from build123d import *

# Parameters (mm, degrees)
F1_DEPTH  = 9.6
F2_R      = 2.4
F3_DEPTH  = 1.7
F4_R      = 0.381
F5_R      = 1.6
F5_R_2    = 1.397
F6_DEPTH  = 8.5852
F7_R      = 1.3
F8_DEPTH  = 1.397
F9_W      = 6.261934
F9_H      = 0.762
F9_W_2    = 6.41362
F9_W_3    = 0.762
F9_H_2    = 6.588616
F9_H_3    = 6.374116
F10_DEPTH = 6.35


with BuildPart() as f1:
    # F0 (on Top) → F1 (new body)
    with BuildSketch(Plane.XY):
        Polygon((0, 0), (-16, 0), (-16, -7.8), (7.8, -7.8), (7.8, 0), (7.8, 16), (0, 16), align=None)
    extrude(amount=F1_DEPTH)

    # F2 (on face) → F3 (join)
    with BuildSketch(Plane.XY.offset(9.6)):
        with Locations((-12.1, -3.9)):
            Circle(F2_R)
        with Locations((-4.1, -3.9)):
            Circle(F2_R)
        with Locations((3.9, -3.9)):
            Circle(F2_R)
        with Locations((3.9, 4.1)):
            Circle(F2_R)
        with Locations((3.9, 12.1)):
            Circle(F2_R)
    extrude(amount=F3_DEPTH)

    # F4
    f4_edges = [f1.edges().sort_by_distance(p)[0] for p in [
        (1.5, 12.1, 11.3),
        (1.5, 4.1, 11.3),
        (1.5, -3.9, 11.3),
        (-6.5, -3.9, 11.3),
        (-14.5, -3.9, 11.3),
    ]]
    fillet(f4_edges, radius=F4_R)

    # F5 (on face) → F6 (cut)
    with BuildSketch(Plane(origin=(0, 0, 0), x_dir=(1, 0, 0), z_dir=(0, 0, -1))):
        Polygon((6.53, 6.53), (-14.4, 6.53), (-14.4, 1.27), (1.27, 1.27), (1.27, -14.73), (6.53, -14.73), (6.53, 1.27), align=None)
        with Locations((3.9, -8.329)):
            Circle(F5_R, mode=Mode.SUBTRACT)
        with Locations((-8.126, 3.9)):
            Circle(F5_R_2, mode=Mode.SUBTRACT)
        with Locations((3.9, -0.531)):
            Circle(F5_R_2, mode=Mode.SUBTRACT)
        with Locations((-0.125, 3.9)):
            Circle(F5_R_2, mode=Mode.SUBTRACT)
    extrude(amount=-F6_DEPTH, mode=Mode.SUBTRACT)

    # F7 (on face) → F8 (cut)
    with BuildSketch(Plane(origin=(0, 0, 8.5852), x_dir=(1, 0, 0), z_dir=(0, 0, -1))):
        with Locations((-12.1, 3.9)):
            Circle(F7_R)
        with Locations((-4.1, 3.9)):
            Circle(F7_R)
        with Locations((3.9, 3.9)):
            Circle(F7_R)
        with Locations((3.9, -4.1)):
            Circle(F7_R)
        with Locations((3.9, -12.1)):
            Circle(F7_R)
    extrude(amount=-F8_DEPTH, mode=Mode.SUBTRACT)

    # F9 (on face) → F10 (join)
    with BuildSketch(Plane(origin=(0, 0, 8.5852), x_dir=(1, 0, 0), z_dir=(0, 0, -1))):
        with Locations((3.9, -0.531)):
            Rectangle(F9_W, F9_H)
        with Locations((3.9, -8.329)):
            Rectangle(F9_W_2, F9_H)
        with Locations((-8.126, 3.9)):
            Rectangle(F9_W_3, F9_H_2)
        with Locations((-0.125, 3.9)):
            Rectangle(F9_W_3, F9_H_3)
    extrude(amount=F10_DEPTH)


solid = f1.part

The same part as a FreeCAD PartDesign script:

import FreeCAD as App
import Part
import Sketcher
Q = App.Units.Quantity


def edges_at(feature, points):
    """Names of the edges that pass closest to the given points."""
    edges = feature.Shape.Edges
    near = lambda p: min(range(len(edges)), key=lambda i: edges[i].distToShape(Part.Vertex(*p))[0])
    return sorted({f"Edge{near(p) + 1}" for p in points})

doc = App.newDocument("Part")
body = doc.addObject("PartDesign::Body", "Body")

sketch1 = body.newObject("Sketcher::SketchObject", "Sketch")
sketch1.AttachmentSupport = (doc.getObject("XY_Plane"), [""])
sketch1.MapMode = "FlatFace"
sketch1.addGeometry([
    Part.LineSegment(App.Vector(0, 0, 0), App.Vector(-16, 0, 0)),
    Part.LineSegment(App.Vector(-16, 0, 0), App.Vector(-16, -7.8, 0)),
    Part.LineSegment(App.Vector(-16, -7.8, 0), App.Vector(7.8, -7.8, 0)),
    Part.LineSegment(App.Vector(7.8, -7.8, 0), App.Vector(7.8, 16, 0)),
    Part.LineSegment(App.Vector(7.8, 16, 0), App.Vector(0, 16, 0)),
    Part.LineSegment(App.Vector(0, 16, 0), App.Vector(0, 0, 0)),
], False)
sketch1.addConstraint([
    Sketcher.Constraint("Coincident", 0, 2, 1, 1),
    Sketcher.Constraint("Coincident", 1, 2, 2, 1),
    Sketcher.Constraint("Coincident", 2, 2, 3, 1),
    Sketcher.Constraint("Coincident", 3, 2, 4, 1),
    Sketcher.Constraint("Coincident", 4, 2, 5, 1),
    Sketcher.Constraint("Coincident", 5, 2, 0, 1),
    Sketcher.Constraint("Horizontal", 0),
    Sketcher.Constraint("Vertical", 1),
    Sketcher.Constraint("Horizontal", 2),
    Sketcher.Constraint("Vertical", 3),
    Sketcher.Constraint("Horizontal", 4),
    Sketcher.Constraint("Vertical", 5),
    Sketcher.Constraint("Coincident", 5, 2, -1, 1),
    Sketcher.Constraint("Equal", 4, 1),
    Sketcher.Constraint("Equal", 2, 3),
    Sketcher.Constraint("DistanceX", 0, 2, 0, 1, Q("16 mm")),
    Sketcher.Constraint("DistanceX", 2, 1, 2, 2, Q("23.8 mm")),
])
pad1 = body.newObject("PartDesign::Pad", "Pad")
pad1.Profile = sketch1
pad1.Length = 9.6

sketch2 = body.newObject("Sketcher::SketchObject", "Sketch001")
sketch2.AttachmentSupport = (doc.getObject("XY_Plane"), [""])
sketch2.MapMode = "FlatFace"
sketch2.AttachmentOffset = App.Placement(App.Vector(0, 0, 9.6), App.Rotation())
sketch2.addGeometry([
    Part.Circle(App.Vector(-12.1, -3.9, 0), App.Vector(0, 0, 1), 2.4),
    Part.Circle(App.Vector(-4.1, -3.9, 0), App.Vector(0, 0, 1), 2.4),
    Part.Circle(App.Vector(3.9, -3.9, 0), App.Vector(0, 0, 1), 2.4),
    Part.Circle(App.Vector(3.9, 4.1, 0), App.Vector(0, 0, 1), 2.4),
    Part.Circle(App.Vector(3.9, 12.1, 0), App.Vector(0, 0, 1), 2.4),
], False)
sketch2.addConstraint([
    Sketcher.Constraint("Equal", 0, 1),
    Sketcher.Constraint("Equal", 1, 2),
    Sketcher.Constraint("Equal", 2, 3),
    Sketcher.Constraint("Equal", 3, 4),
    Sketcher.Constraint("Horizontal", 0, 3, 1, 3),
    Sketcher.Constraint("Horizontal", 1, 3, 2, 3),
    Sketcher.Constraint("Vertical", 2, 3, 3, 3),
    Sketcher.Constraint("Vertical", 3, 3, 4, 3),
    Sketcher.Constraint("Diameter", 0, Q("4.8 mm")),
    Sketcher.Constraint("DistanceX", 0, 3, 1, 3, Q("8 mm")),
    Sketcher.Constraint("DistanceX", 1, 3, 2, 3, Q("8 mm")),
    Sketcher.Constraint("DistanceY", 2, 3, 3, 3, Q("8 mm")),
    Sketcher.Constraint("DistanceY", 3, 3, 4, 3, Q("8 mm")),
    Sketcher.Constraint("DistanceX", 0, 3, -1, 1, Q("12.1 mm")),
    Sketcher.Constraint("DistanceY", 0, 3, -1, 1, Q("3.9 mm")),
])
pad2 = body.newObject("PartDesign::Pad", "Pad001")
pad2.Profile = sketch2
pad2.Length = 1.7
doc.recompute()

fillet = body.newObject("PartDesign::Fillet", "Fillet")
fillet.Base = (pad2, edges_at(pad2, [
    (1.5, 12.1, 11.3),
    (1.5, 4.1, 11.3),
    (1.5, -3.9, 11.3),
    (-6.5, -3.9, 11.3),
    (-14.5, -3.9, 11.3),
]))
fillet.Radius = 0.381

sketch3 = body.newObject("Sketcher::SketchObject", "Sketch002")
sketch3.AttachmentSupport = (doc.getObject("XY_Plane"), [""])
sketch3.MapMode = "FlatFace"
sketch3.addGeometry([
    Part.LineSegment(App.Vector(6.53, -6.53, 0), App.Vector(-14.4, -6.53, 0)),
    Part.LineSegment(App.Vector(-14.4, -6.53, 0), App.Vector(-14.4, -1.27, 0)),
    Part.LineSegment(App.Vector(-14.4, -1.27, 0), App.Vector(1.27, -1.27, 0)),
    Part.LineSegment(App.Vector(1.27, -1.27, 0), App.Vector(1.27, 14.73, 0)),
    Part.LineSegment(App.Vector(1.27, 14.73, 0), App.Vector(6.53, 14.73, 0)),
    Part.LineSegment(App.Vector(6.53, 14.73, 0), App.Vector(6.53, -6.53, 0)),
    Part.Circle(App.Vector(3.9, 8.329, 0), App.Vector(0, 0, 1), 1.6),
    Part.Circle(App.Vector(-8.126, -3.9, 0), App.Vector(0, 0, 1), 1.397),
    Part.Circle(App.Vector(3.9, 0.531, 0), App.Vector(0, 0, 1), 1.397),
    Part.Circle(App.Vector(-0.125, -3.9, 0), App.Vector(0, 0, 1), 1.397),
], False)
sketch3.addConstraint([
    Sketcher.Constraint("Coincident", 0, 2, 1, 1),
    Sketcher.Constraint("Coincident", 1, 2, 2, 1),
    Sketcher.Constraint("Coincident", 2, 2, 3, 1),
    Sketcher.Constraint("Coincident", 3, 2, 4, 1),
    Sketcher.Constraint("Coincident", 4, 2, 5, 1),
    Sketcher.Constraint("Coincident", 5, 2, 0, 1),
    Sketcher.Constraint("Horizontal", 0),
    Sketcher.Constraint("Vertical", 1),
    Sketcher.Constraint("Horizontal", 2),
    Sketcher.Constraint("Vertical", 3),
    Sketcher.Constraint("Horizontal", 4),
    Sketcher.Constraint("Vertical", 5),
    Sketcher.Constraint("Equal", 7, 8),
    Sketcher.Constraint("Equal", 8, 9),
    Sketcher.Constraint("Horizontal", 7, 3, 9, 3),
    Sketcher.Constraint("Vertical", 6, 3, 8, 3),
    Sketcher.Constraint("Equal", 4, 1),
    Sketcher.Constraint("Diameter", 6, Q("3.2 mm")),
    Sketcher.Constraint("DistanceY", 3, 1, 3, 2, Q("16 mm")),
    Sketcher.Constraint("Diameter", 7, Q("2.794 mm")),
    Sketcher.Constraint("DistanceX", 0, 2, 0, 1, Q("20.93 mm")),
    Sketcher.Constraint("DistanceX", 2, 1, 2, 2, Q("15.67 mm")),
    Sketcher.Constraint("DistanceX", -1, 1, 6, 3, Q("3.9 mm")),
    Sketcher.Constraint("DistanceY", 7, 3, -1, 1, Q("3.9 mm")),
    Sketcher.Constraint("DistanceX", 0, 2, -1, 1, Q("14.4 mm")),
    Sketcher.Constraint("DistanceY", 0, 2, -1, 1, Q("6.53 mm")),
    Sketcher.Constraint("DistanceY", -1, 1, 6, 3, Q("8.329 mm")),
    Sketcher.Constraint("DistanceX", 7, 3, -1, 1, Q("8.126 mm")),
    Sketcher.Constraint("DistanceY", -1, 1, 8, 3, Q("0.531 mm")),
    Sketcher.Constraint("DistanceX", 9, 3, -1, 1, Q("0.125 mm")),
])
pocket1 = body.newObject("PartDesign::Pocket", "Pocket")
pocket1.Profile = sketch3
pocket1.Length = 8.5852
pocket1.Reversed = True

sketch4 = body.newObject("Sketcher::SketchObject", "Sketch003")
sketch4.AttachmentSupport = (doc.getObject("XY_Plane"), [""])
sketch4.MapMode = "FlatFace"
sketch4.AttachmentOffset = App.Placement(App.Vector(0, 0, 8.5852), App.Rotation())
sketch4.addGeometry([
    Part.Circle(App.Vector(-12.1, -3.9, 0), App.Vector(0, 0, 1), 1.3),
    Part.Circle(App.Vector(-4.1, -3.9, 0), App.Vector(0, 0, 1), 1.3),
    Part.Circle(App.Vector(3.9, -3.9, 0), App.Vector(0, 0, 1), 1.3),
    Part.Circle(App.Vector(3.9, 4.1, 0), App.Vector(0, 0, 1), 1.3),
    Part.Circle(App.Vector(3.9, 12.1, 0), App.Vector(0, 0, 1), 1.3),
], False)
sketch4.addConstraint([
    Sketcher.Constraint("Equal", 0, 1),
    Sketcher.Constraint("Equal", 1, 2),
    Sketcher.Constraint("Equal", 2, 3),
    Sketcher.Constraint("Equal", 3, 4),
    Sketcher.Constraint("Horizontal", 0, 3, 1, 3),
    Sketcher.Constraint("Horizontal", 1, 3, 2, 3),
    Sketcher.Constraint("Vertical", 2, 3, 3, 3),
    Sketcher.Constraint("Vertical", 3, 3, 4, 3),
    Sketcher.Constraint("Diameter", 0, Q("2.6 mm")),
    Sketcher.Constraint("DistanceX", 0, 3, 1, 3, Q("8 mm")),
    Sketcher.Constraint("DistanceX", 1, 3, 2, 3, Q("8 mm")),
    Sketcher.Constraint("DistanceY", 2, 3, 3, 3, Q("8 mm")),
    Sketcher.Constraint("DistanceY", 3, 3, 4, 3, Q("8 mm")),
    Sketcher.Constraint("DistanceX", 0, 3, -1, 1, Q("12.1 mm")),
    Sketcher.Constraint("DistanceY", 0, 3, -1, 1, Q("3.9 mm")),
])
pocket2 = body.newObject("PartDesign::Pocket", "Pocket001")
pocket2.Profile = sketch4
pocket2.Length = 1.397
pocket2.Reversed = True

sketch5 = body.newObject("Sketcher::SketchObject", "Sketch004")
sketch5.AttachmentSupport = (doc.getObject("XY_Plane"), [""])
sketch5.MapMode = "FlatFace"
sketch5.AttachmentOffset = App.Placement(App.Vector(0, 0, 8.5852), App.Rotation())
sketch5.addGeometry([
    Part.LineSegment(App.Vector(0.769033, 0.15, 0), App.Vector(0.769033, 0.912, 0)),
    Part.LineSegment(App.Vector(0.769033, 0.912, 0), App.Vector(7.030967, 0.912, 0)),
    Part.LineSegment(App.Vector(7.030967, 0.912, 0), App.Vector(7.030967, 0.15, 0)),
    Part.LineSegment(App.Vector(7.030967, 0.15, 0), App.Vector(0.769033, 0.15, 0)),
    Part.LineSegment(App.Vector(0.69319, 7.948, 0), App.Vector(0.69319, 8.71, 0)),
    Part.LineSegment(App.Vector(0.69319, 8.71, 0), App.Vector(7.10681, 8.71, 0)),
    Part.LineSegment(App.Vector(7.10681, 8.71, 0), App.Vector(7.10681, 7.948, 0)),
    Part.LineSegment(App.Vector(7.10681, 7.948, 0), App.Vector(0.69319, 7.948, 0)),
    Part.LineSegment(App.Vector(-8.507, -7.194308, 0), App.Vector(-8.507, -0.605692, 0)),
    Part.LineSegment(App.Vector(-8.507, -0.605692, 0), App.Vector(-7.745, -0.605692, 0)),
    Part.LineSegment(App.Vector(-7.745, -0.605692, 0), App.Vector(-7.745, -7.194308, 0)),
    Part.LineSegment(App.Vector(-7.745, -7.194308, 0), App.Vector(-8.507, -7.194308, 0)),
    Part.LineSegment(App.Vector(-0.506, -7.087058, 0), App.Vector(-0.506, -0.712942, 0)),
    Part.LineSegment(App.Vector(-0.506, -0.712942, 0), App.Vector(0.256, -0.712942, 0)),
    Part.LineSegment(App.Vector(0.256, -0.712942, 0), App.Vector(0.256, -7.087058, 0)),
    Part.LineSegment(App.Vector(0.256, -7.087058, 0), App.Vector(-0.506, -7.087058, 0)),
], False)
sketch5.addConstraint([
    Sketcher.Constraint("Coincident", 0, 2, 1, 1),
    Sketcher.Constraint("Coincident", 1, 2, 2, 1),
    Sketcher.Constraint("Coincident", 2, 2, 3, 1),
    Sketcher.Constraint("Coincident", 3, 2, 0, 1),
    Sketcher.Constraint("Coincident", 4, 2, 5, 1),
    Sketcher.Constraint("Coincident", 5, 2, 6, 1),
    Sketcher.Constraint("Coincident", 6, 2, 7, 1),
    Sketcher.Constraint("Coincident", 7, 2, 4, 1),
    Sketcher.Constraint("Coincident", 8, 2, 9, 1),
    Sketcher.Constraint("Coincident", 9, 2, 10, 1),
    Sketcher.Constraint("Coincident", 10, 2, 11, 1),
    Sketcher.Constraint("Coincident", 11, 2, 8, 1),
    Sketcher.Constraint("Coincident", 12, 2, 13, 1),
    Sketcher.Constraint("Coincident", 13, 2, 14, 1),
    Sketcher.Constraint("Coincident", 14, 2, 15, 1),
    Sketcher.Constraint("Coincident", 15, 2, 12, 1),
    Sketcher.Constraint("Vertical", 0),
    Sketcher.Constraint("Horizontal", 1),
    Sketcher.Constraint("Vertical", 2),
    Sketcher.Constraint("Horizontal", 3),
    Sketcher.Constraint("Vertical", 4),
    Sketcher.Constraint("Horizontal", 5),
    Sketcher.Constraint("Vertical", 6),
    Sketcher.Constraint("Horizontal", 7),
    Sketcher.Constraint("Vertical", 8),
    Sketcher.Constraint("Horizontal", 9),
    Sketcher.Constraint("Vertical", 10),
    Sketcher.Constraint("Horizontal", 11),
    Sketcher.Constraint("Vertical", 12),
    Sketcher.Constraint("Horizontal", 13),
    Sketcher.Constraint("Vertical", 14),
    Sketcher.Constraint("Horizontal", 15),
    Sketcher.Constraint("Equal", 11, 13),
    Sketcher.Constraint("Equal", 15, 0),
    Sketcher.Constraint("Equal", 2, 4),
    Sketcher.Constraint("DistanceX", 9, 1, 9, 2, Q("0.762 mm")),
    Sketcher.Constraint("DistanceY", -1, 1, 2, 2, Q("0.15 mm")),
    Sketcher.Constraint("DistanceY", -1, 1, 4, 2, Q("8.71 mm")),
    Sketcher.Constraint("DistanceX", 8, 2, -1, 1, Q("8.507 mm")),
    Sketcher.Constraint("DistanceX", 12, 2, -1, 1, Q("0.506 mm")),
    Sketcher.Constraint("DistanceX", 5, 1, 5, 2, Q("6.41362 mm")),
    Sketcher.Constraint("DistanceX", 1, 1, 1, 2, Q("6.261934 mm")),
    Sketcher.Constraint("DistanceY", 8, 1, 8, 2, Q("6.588616 mm")),
    Sketcher.Constraint("DistanceY", 12, 1, 12, 2, Q("6.374116 mm")),
    Sketcher.Constraint("DistanceX", -1, 1, 4, 2, Q("0.69319 mm")),
    Sketcher.Constraint("DistanceY", 10, 2, -1, 1, Q("7.194308 mm")),
    Sketcher.Constraint("DistanceY", 12, 2, -1, 1, Q("0.712942 mm")),
    Sketcher.Constraint("DistanceX", -1, 1, 0, 2, Q("0.769033 mm")),
])
pad3 = body.newObject("PartDesign::Pad", "Pad002")
pad3.Profile = sketch5
pad3.Length = 6.35
pad3.Reversed = True

doc.recompute()
